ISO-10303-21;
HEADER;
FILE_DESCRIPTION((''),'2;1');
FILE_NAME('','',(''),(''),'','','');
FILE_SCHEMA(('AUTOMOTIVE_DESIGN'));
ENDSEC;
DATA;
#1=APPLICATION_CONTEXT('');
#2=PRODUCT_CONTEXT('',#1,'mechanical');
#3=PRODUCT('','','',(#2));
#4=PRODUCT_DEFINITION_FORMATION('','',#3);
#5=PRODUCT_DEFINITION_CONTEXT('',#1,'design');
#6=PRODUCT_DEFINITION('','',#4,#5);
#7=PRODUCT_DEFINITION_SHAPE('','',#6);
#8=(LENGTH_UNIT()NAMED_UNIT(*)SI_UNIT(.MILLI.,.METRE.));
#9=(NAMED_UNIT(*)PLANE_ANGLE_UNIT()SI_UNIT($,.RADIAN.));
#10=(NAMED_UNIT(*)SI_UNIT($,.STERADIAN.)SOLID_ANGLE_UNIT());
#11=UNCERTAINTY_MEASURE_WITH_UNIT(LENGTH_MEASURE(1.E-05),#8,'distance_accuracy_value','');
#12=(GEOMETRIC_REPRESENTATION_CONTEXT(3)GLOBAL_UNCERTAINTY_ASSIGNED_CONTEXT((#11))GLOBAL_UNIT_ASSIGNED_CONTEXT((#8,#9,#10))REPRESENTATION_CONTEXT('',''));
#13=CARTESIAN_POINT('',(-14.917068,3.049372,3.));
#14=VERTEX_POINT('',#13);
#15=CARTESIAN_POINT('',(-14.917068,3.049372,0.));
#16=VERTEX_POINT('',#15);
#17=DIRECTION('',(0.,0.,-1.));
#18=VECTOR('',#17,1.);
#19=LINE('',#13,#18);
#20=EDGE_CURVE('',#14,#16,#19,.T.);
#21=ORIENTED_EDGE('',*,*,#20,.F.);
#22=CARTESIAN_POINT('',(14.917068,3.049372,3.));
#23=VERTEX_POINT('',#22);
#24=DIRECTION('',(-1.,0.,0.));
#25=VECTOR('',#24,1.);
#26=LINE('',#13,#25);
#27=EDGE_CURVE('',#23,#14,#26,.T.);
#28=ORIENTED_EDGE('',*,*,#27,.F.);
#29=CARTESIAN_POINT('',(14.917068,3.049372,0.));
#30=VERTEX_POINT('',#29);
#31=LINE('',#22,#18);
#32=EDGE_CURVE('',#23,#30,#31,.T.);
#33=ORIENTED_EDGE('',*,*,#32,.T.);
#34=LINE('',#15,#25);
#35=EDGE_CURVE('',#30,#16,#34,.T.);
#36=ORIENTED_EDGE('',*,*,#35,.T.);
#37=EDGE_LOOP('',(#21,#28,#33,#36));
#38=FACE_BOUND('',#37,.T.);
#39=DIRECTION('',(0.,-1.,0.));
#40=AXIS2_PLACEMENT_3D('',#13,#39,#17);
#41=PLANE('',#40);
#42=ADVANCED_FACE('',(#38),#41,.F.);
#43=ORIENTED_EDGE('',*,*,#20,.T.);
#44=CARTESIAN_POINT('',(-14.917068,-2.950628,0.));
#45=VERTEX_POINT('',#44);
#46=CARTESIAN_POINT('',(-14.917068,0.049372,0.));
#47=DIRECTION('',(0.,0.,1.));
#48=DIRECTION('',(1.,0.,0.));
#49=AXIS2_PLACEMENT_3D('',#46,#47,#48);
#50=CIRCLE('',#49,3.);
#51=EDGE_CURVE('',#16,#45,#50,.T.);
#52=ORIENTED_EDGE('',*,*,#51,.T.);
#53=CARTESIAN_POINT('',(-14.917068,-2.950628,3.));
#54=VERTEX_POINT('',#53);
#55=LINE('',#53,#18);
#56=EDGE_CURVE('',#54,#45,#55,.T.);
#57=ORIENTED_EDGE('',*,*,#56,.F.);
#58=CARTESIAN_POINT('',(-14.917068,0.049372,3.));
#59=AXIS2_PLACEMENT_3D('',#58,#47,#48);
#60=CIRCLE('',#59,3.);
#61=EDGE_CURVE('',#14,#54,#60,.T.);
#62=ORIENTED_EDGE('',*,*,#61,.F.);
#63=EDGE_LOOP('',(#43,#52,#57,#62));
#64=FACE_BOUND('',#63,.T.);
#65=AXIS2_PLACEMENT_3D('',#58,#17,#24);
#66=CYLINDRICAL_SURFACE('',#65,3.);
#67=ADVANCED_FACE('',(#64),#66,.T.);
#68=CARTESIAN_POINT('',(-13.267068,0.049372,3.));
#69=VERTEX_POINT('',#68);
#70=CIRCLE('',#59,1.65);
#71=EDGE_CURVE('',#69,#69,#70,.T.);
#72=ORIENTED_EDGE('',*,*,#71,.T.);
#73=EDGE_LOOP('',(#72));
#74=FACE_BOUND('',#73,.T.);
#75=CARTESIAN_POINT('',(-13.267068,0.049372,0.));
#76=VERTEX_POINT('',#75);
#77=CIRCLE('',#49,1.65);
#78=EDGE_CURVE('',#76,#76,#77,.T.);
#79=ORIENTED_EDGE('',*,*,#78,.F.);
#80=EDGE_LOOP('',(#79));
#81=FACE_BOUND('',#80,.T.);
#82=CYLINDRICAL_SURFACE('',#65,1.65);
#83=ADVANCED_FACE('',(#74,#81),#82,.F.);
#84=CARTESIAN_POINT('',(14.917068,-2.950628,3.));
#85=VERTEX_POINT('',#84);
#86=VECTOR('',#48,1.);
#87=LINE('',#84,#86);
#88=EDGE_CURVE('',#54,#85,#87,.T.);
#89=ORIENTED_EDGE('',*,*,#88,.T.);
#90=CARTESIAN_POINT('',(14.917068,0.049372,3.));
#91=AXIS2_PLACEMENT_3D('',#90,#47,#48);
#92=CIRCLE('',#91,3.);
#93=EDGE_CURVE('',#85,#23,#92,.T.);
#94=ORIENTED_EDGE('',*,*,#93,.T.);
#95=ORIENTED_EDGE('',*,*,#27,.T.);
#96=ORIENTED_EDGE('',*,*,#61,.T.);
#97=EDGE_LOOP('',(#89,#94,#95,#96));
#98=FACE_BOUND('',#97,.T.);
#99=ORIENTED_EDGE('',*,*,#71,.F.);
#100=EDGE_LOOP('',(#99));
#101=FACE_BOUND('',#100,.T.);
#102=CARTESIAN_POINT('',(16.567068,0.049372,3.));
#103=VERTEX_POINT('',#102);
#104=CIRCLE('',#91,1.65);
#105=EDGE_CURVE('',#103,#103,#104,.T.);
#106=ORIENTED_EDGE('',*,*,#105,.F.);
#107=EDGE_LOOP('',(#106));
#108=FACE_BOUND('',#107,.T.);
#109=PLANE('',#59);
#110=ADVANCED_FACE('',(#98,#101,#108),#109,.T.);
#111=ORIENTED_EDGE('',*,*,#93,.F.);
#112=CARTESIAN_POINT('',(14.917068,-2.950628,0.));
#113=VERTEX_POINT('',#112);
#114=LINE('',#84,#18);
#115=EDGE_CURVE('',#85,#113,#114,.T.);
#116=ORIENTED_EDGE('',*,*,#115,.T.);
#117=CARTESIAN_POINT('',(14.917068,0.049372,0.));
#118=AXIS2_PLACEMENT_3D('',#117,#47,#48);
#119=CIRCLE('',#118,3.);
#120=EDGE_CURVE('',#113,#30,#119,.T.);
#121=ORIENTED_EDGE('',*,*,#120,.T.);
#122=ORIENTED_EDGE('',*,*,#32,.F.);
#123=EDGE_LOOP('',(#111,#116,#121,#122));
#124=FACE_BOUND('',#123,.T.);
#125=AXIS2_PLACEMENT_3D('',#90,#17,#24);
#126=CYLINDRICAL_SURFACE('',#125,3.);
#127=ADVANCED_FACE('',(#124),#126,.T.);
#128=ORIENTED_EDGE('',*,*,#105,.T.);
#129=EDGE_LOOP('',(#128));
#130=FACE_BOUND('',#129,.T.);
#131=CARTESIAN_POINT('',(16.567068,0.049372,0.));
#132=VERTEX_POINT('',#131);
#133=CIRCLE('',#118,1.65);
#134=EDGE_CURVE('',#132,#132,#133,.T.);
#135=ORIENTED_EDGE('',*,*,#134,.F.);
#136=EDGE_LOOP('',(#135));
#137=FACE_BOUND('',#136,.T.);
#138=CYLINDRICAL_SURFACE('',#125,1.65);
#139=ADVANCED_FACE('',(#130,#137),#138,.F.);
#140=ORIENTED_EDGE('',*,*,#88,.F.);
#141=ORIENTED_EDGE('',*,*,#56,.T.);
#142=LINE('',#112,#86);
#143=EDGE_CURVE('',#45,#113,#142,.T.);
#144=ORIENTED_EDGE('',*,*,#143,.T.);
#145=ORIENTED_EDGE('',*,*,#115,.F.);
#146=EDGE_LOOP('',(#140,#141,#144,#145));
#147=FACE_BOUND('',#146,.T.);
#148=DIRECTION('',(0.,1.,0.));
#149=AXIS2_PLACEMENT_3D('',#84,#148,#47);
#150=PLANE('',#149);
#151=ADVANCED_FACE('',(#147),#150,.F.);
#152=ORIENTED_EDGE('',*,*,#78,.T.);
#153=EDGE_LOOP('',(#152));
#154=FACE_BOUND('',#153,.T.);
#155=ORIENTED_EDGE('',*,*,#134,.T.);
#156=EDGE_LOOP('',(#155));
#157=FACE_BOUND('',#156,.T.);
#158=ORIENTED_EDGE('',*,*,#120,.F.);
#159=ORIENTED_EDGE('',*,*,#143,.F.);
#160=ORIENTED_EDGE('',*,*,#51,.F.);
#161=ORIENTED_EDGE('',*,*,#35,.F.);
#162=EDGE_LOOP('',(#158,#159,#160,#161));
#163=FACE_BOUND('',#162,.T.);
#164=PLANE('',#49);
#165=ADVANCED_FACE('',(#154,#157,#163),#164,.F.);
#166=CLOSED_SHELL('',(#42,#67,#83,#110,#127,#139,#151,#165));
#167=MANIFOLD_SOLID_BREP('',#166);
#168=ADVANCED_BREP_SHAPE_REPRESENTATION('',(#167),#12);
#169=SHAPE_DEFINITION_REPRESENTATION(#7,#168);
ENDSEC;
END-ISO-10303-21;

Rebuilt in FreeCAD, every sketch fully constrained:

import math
import FreeCAD as App
import Part
import Sketcher

doc = App.newDocument("Part")
body = doc.addObject("PartDesign::Body", "Body")

sketch1 = body.newObject("Sketcher::SketchObject", "Sketch")
sketch1.AttachmentSupport = (doc.getObject("XY_Plane"), [""])
sketch1.MapMode = "FlatFace"
sketch1.addGeometry(Part.LineSegment(App.Vector(14.9, 3, 0), App.Vector(-14.9, 3, 0)), False)
sketch1.addGeometry(Part.ArcOfCircle(Part.Circle(App.Vector(-14.9, 0, 0), App.Vector(0, 0, 1), 3), math.radians(90), math.radians(270)), False)
sketch1.addGeometry(Part.LineSegment(App.Vector(-14.9, -3, 0), App.Vector(14.9, -3, 0)), False)
sketch1.addGeometry(Part.ArcOfCircle(Part.Circle(App.Vector(14.9, 0, 0), App.Vector(0, 0, 1), 3), math.radians(-90), math.radians(90)), False)
sketch1.addGeometry(Part.Circle(App.Vector(14.9, 0, 0), App.Vector(0, 0, 1), 1.6), False)
sketch1.addGeometry(Part.Circle(App.Vector(-14.9, 0, 0), App.Vector(0, 0, 1), 1.6), False)
sketch1.addConstraint(Sketcher.Constraint("Tangent", 0, 2, 1, 1))
sketch1.addConstraint(Sketcher.Constraint("Tangent", 1, 2, 2, 1))
sketch1.addConstraint(Sketcher.Constraint("Tangent", 2, 2, 3, 1))
sketch1.addConstraint(Sketcher.Constraint("Tangent", 3, 2, 0, 1))
sketch1.addConstraint(Sketcher.Constraint("Horizontal", 0))
sketch1.addConstraint(Sketcher.Constraint("Horizontal", 2))
sketch1.addConstraint(Sketcher.Constraint("Coincident", 4, 3, 3, 3))
sketch1.addConstraint(Sketcher.Constraint("Coincident", 5, 3, 1, 3))
sketch1.addConstraint(Sketcher.Constraint("Equal", 4, 5))
sketch1.addConstraint(Sketcher.Constraint("Radius", 1, 3.0))
sketch1.addConstraint(Sketcher.Constraint("Diameter", 4, 3.3))
sketch1.addConstraint(Sketcher.Constraint("DistanceX", 0, 2, 0, 1, 29.834137))
sketch1.addConstraint(Sketcher.Constraint("DistanceX", 1, 3, -1, 1, 14.917068))
sketch1.addConstraint(Sketcher.Constraint("DistanceY", -1, 1, 1, 3, 0.049372))
pad1 = body.newObject("PartDesign::Pad", "Pad")
pad1.Profile = sketch1
pad1.Length = 3

doc.recompute()
